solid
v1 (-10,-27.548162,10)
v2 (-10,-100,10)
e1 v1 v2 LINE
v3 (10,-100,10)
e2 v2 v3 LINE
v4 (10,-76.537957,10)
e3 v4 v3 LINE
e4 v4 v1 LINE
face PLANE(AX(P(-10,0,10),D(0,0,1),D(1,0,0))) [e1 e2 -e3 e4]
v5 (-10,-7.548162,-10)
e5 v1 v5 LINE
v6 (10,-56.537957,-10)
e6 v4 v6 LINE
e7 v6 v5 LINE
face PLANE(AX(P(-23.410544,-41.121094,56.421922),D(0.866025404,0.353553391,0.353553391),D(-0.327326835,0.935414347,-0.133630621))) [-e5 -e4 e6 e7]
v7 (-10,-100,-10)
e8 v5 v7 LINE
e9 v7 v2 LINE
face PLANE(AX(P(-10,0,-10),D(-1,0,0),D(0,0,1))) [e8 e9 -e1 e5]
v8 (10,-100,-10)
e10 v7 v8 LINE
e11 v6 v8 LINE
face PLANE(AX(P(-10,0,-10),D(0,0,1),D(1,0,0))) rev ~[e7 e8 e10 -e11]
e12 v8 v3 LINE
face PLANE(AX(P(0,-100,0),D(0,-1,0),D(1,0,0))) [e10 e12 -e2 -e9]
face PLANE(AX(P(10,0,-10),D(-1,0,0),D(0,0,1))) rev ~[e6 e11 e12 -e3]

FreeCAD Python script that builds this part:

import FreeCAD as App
import Part
import Sketcher

V = App.Vector


def add_polygon(sketch, points):
    """Adds a closed chain of lines whose ends are joined by coincident constraints."""
    first, n = sketch.GeometryCount, len(points)
    for a, b in zip(points, points[1:] + points[:1]):
        sketch.addGeometry(Part.LineSegment(App.Vector(*a, 0), App.Vector(*b, 0)), False)
    for i in range(n):
        sketch.addConstraint(Sketcher.Constraint("Coincident", first + i, 2, first + (i + 1) % n, 1))

doc = App.newDocument("Part")
params = doc.addObject("Spreadsheet::Sheet", "Params")
for row, (alias, value) in enumerate([
    ("sketch1_width", "20 mm"),
    ("pad1_length", "100 mm"),
    ("pocket1_length", "18.4 mm"),
    ("pocket1_length2", "8.661254 mm"),
], start=1):
    params.set(f"A{row}", alias)
    params.set(f"B{row}", "=" + value)
    params.setAlias(f"B{row}", alias)

body = doc.addObject("PartDesign::Body", "Body")

# Sketch on XZ plane
sketch1 = body.newObject("Sketcher::SketchObject", "Sketch")
sketch1.AttachmentSupport = (doc.getObject("XZ_Plane"), [""])
sketch1.MapMode = "FlatFace"
add_polygon(sketch1, [(-10, 10), (-10, -10), (10, -10), (10, 10)])  # lines 0-3
sketch1.addConstraint([
    Sketcher.Constraint("Vertical", 0),
    Sketcher.Constraint("Horizontal", 1),
    Sketcher.Constraint("Vertical", 2),
    Sketcher.Constraint("Horizontal", 3),
    Sketcher.Constraint("Symmetric", 0, 2, 2, 2, -1, 1),
    Sketcher.Constraint("Equal", 3, 0),
    Sketcher.Constraint("DistanceX", 1, 1, 1, 2, 20.0),
])
sketch1.setExpression("Constraints[10]", "Params.sketch1_width")
pad1 = body.newObject("PartDesign::Pad", "Pad")
pad1.Profile = sketch1
pad1.setExpression("Length", "Params.pad1_length")

# Sketch on an angled plane
sketch2 = body.newObject("Sketcher::SketchObject", "Sketch001")
sketch2.Placement = App.Placement(V(3.061862, 1.25, 1.25), App.Rotation(V(-0.327326835, 0.935414347, -0.133630621), V(-0.377964474, 0, 0.9258201), V(0.866025404, 0.353553391, 0.353553391), "ZXY"))
add_polygon(sketch2, [(-302, 304), (-302, -182), (225, -182), (225, 304)])  # lines 0-3
sketch2.addConstraint([
    Sketcher.Constraint("Vertical", 0),
    Sketcher.Constraint("Horizontal", 1),
    Sketcher.Constraint("Vertical", 2),
    Sketcher.Constraint("Horizontal", 3),
    Sketcher.Constraint("DistanceX", 1, 1, 1, 2, 527.400017),
    Sketcher.Constraint("DistanceY", 0, 2, 0, 1, 486.775384),
    Sketcher.Constraint("DistanceY", 0, 2, -1, 1, 182.302788),
    Sketcher.Constraint("DistanceX", -1, 1, 1, 2, 225.35795),
])
pocket1 = body.newObject("PartDesign::Pocket", "Pocket")
pocket1.Profile = sketch2
pocket1.Type = "TwoLengths"
pocket1.setExpression("Length", "Params.pocket1_length")
pocket1.setExpression("Length2", "Params.pocket1_length2")

doc.recompute()
